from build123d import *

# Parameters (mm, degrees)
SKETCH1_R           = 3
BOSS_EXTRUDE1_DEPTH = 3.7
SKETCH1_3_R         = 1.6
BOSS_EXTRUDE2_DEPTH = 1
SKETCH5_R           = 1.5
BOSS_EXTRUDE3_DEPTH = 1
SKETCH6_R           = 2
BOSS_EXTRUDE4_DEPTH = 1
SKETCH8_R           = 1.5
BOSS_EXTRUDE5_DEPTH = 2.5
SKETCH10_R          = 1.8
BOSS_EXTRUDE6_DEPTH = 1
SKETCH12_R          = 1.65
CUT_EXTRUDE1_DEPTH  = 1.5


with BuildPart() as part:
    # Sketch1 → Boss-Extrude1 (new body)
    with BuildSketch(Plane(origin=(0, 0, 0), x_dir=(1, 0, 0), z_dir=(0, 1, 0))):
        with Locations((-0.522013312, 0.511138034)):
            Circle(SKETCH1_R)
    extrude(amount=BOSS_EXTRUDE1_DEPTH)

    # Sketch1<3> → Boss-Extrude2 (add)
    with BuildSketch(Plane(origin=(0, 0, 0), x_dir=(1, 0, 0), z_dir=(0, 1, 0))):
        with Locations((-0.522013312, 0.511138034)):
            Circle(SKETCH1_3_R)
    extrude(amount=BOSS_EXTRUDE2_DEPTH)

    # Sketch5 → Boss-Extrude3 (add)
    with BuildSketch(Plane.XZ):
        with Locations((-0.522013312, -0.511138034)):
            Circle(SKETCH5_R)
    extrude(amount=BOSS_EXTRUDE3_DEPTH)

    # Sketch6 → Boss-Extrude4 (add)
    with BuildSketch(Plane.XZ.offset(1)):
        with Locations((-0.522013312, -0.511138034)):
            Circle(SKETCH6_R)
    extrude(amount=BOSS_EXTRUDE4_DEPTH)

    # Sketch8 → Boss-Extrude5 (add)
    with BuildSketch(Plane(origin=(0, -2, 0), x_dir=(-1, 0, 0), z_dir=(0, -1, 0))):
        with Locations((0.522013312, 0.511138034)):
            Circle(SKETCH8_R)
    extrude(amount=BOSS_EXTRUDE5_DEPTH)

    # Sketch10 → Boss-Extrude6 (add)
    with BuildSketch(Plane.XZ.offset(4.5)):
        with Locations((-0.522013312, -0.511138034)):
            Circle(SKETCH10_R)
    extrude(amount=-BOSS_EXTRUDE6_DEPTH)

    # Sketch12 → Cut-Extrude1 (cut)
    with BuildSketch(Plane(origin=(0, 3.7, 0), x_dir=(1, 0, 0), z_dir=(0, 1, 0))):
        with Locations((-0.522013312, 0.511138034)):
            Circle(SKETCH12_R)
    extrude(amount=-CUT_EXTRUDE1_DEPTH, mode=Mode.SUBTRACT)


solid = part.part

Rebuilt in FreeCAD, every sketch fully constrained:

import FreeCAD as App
import Part
import Sketcher
from FreeCAD import Vector

doc = App.newDocument("Part")
body = doc.addObject("PartDesign::Body", "Body")

# Sketch on XZ plane
sketch1 = body.newObject("Sketcher::SketchObject", "Sketch")
sketch1.AttachmentSupport = (doc.getObject("XZ_Plane"), [""])
sketch1.MapMode = "FlatFace"
sketch1.addGeometry(Part.Circle(Vector(-0.5, -0.5, 0), Vector(0, 0, 1), 3), False)
sketch1.addConstraint(Sketcher.Constraint("Diameter", 0, 6.0))
sketch1.addConstraint(Sketcher.Constraint("DistanceY", 0, 3, -1, 1, 0.511138))
sketch1.addConstraint(Sketcher.Constraint("DistanceX", 0, 3, -1, 1, 0.522013))
pad1 = body.newObject("PartDesign::Pad", "Pad")
pad1.Profile = sketch1
pad1.Length = 3.7
pad1.Reversed = True

# Sketch on XZ plane
sketch2 = body.newObject("Sketcher::SketchObject", "Sketch001")
sketch2.AttachmentSupport = (doc.getObject("XZ_Plane"), [""])
sketch2.MapMode = "FlatFace"
sketch2.addGeometry(Part.Circle(Vector(-0.5, -0.5, 0), Vector(0, 0, 1), 1.6), False)
sketch2.addConstraint(Sketcher.Constraint("Diameter", 0, 3.2))
sketch2.addConstraint(Sketcher.Constraint("DistanceY", 0, 3, -1, 1, 0.511138))
sketch2.addConstraint(Sketcher.Constraint("DistanceX", 0, 3, -1, 1, 0.522013))
pad2 = body.newObject("PartDesign::Pad", "Pad001")
pad2.Profile = sketch2
pad2.Length = 1
pad2.Reversed = True

# Sketch on XZ plane
sketch3 = body.newObject("Sketcher::SketchObject", "Sketch002")
sketch3.AttachmentSupport = (doc.getObject("XZ_Plane"), [""])
sketch3.MapMode = "FlatFace"
sketch3.addGeometry(Part.Circle(Vector(-0.5, -0.5, 0), Vector(0, 0, 1), 1.5), False)
sketch3.addConstraint(Sketcher.Constraint("Diameter", 0, 3.0))
sketch3.addConstraint(Sketcher.Constraint("DistanceY", 0, 3, -1, 1, 0.511138))
sketch3.addConstraint(Sketcher.Constraint("DistanceX", 0, 3, -1, 1, 0.522013))
pad3 = body.newObject("PartDesign::Pad", "Pad002")
pad3.Profile = sketch3
pad3.Length = 1

# Sketch on XZ plane
sketch4 = body.newObject("Sketcher::SketchObject", "Sketch003")
sketch4.AttachmentSupport = (doc.getObject("XZ_Plane"), [""])
sketch4.MapMode = "FlatFace"
sketch4.AttachmentOffset = App.Placement(Vector(0, 0, 1), App.Rotation())
sketch4.addGeometry(Part.Circle(Vector(-0.5, -0.5, 0), Vector(0, 0, 1), 2), False)
sketch4.addConstraint(Sketcher.Constraint("Diameter", 0, 4.0))
sketch4.addConstraint(Sketcher.Constraint("DistanceY", 0, 3, -1, 1, 0.511138))
sketch4.addConstraint(Sketcher.Constraint("DistanceX", 0, 3, -1, 1, 0.522013))
pad4 = body.newObject("PartDesign::Pad", "Pad003")
pad4.Profile = sketch4
pad4.Length = 1

# Sketch on XZ plane
sketch5 = body.newObject("Sketcher::SketchObject", "Sketch004")
sketch5.AttachmentSupport = (doc.getObject("XZ_Plane"), [""])
sketch5.MapMode = "FlatFace"
sketch5.AttachmentOffset = App.Placement(Vector(0, 0, 2), App.Rotation())
sketch5.addGeometry(Part.Circle(Vector(-0.5, -0.5, 0), Vector(0, 0, 1), 1.5), False)
sketch5.addConstraint(Sketcher.Constraint("Diameter", 0, 3.0))
sketch5.addConstraint(Sketcher.Constraint("DistanceY", 0, 3, -1, 1, 0.511138))
sketch5.addConstraint(Sketcher.Constraint("DistanceX", 0, 3, -1, 1, 0.522013))
pad5 = body.newObject("PartDesign::Pad", "Pad004")
pad5.Profile = sketch5
pad5.Length = 2.5

# Sketch on XZ plane
sketch6 = body.newObject("Sketcher::SketchObject", "Sketch005")
sketch6.AttachmentSupport = (doc.getObject("XZ_Plane"), [""])
sketch6.MapMode = "FlatFace"
sketch6.AttachmentOffset = App.Placement(Vector(0, 0, 4.5), App.Rotation())
sketch6.addGeometry(Part.Circle(Vector(-0.5, -0.5, 0), Vector(0, 0, 1), 1.8), False)
sketch6.addConstraint(Sketcher.Constraint("Diameter", 0, 3.6))
sketch6.addConstraint(Sketcher.Constraint("DistanceY", 0, 3, -1, 1, 0.511138))
sketch6.addConstraint(Sketcher.Constraint("DistanceX", 0, 3, -1, 1, 0.522013))
pad6 = body.newObject("PartDesign::Pad", "Pad005")
pad6.Profile = sketch6
pad6.Length = 1
pad6.Reversed = True

# Sketch on XZ plane
sketch7 = body.newObject("Sketcher::SketchObject", "Sketch006")
sketch7.AttachmentSupport = (doc.getObject("XZ_Plane"), [""])
sketch7.MapMode = "FlatFace"
sketch7.AttachmentOffset = App.Placement(Vector(0, 0, -3.7), App.Rotation())
sketch7.addGeometry(Part.Circle(Vector(-0.5, -0.5, 0), Vector(0, 0, 1), 1.6), False)
sketch7.addConstraint(Sketcher.Constraint("Diameter", 0, 3.3))
sketch7.addConstraint(Sketcher.Constraint("DistanceY", 0, 3, -1, 1, 0.511138))
sketch7.addConstraint(Sketcher.Constraint("DistanceX", 0, 3, -1, 1, 0.522013))
pocket1 = body.newObject("PartDesign::Pocket", "Pocket")
pocket1.Profile = sketch7
pocket1.Length = 1.5
pocket1.Reversed = True

doc.recompute()
